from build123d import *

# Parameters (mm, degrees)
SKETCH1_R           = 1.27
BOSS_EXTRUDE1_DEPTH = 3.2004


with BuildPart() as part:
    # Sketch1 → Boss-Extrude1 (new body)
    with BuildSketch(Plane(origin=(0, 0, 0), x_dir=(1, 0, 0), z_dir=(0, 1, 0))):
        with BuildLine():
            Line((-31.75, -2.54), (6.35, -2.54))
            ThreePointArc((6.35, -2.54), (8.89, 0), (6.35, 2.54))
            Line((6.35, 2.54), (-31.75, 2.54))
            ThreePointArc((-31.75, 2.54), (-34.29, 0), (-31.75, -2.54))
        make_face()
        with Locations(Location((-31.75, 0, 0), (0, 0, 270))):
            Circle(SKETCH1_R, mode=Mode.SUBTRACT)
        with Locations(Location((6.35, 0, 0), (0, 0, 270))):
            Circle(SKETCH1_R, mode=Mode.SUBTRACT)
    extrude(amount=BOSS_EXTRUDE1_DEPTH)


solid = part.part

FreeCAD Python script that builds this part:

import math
import FreeCAD as App
import Part
import Sketcher
from FreeCAD import Vector
Q = App.Units.Quantity

doc = App.newDocument("Part")
params = doc.addObject("Spreadsheet::Sheet", "Params")
for row, (alias, value) in enumerate([
    ("sketch1_diameter", "0.1 in"),
    ("sketch1_radius", "0.1 in"),
    ("sketch1_width", "1.5 in"),
    ("pad1_length", "0.126 in"),
], start=1):
    params.set(f"A{row}", alias)
    params.set(f"B{row}", "=" + value)
    params.setAlias(f"B{row}", alias)

body = doc.addObject("PartDesign::Body", "Body")

# Sketch on XZ plane
sketch1 = doc.addObject("Sketcher::SketchObject", "Sketch")
body.addObject(sketch1)
sketch1.AttachmentSupport = (doc.XZ_Plane, [""])
sketch1.MapMode = "FlatFace"
sketch1.addGeometry([
    Part.LineSegment(Vector(-31.8, 2.5, 0), Vector(6.3, 2.5, 0)),  # 0
    Part.ArcOfCircle(Part.Circle(Vector(6.3, 0, 0), Vector(0, 0, 1), 2.5), math.radians(-90), math.radians(90)),  # 1
    Part.LineSegment(Vector(6.3, -2.5, 0), Vector(-31.8, -2.5, 0)),  # 2
    Part.ArcOfCircle(Part.Circle(Vector(-31.8, 0, 0), Vector(0, 0, 1), 2.5), math.radians(90), math.radians(270)),  # 3
    Part.Circle(Vector(-31.8, 0, 0), Vector(0, 0, 1), 1.3),  # 4
    Part.Circle(Vector(6.3, 0, 0), Vector(0, 0, 1), 1.3),  # 5
], False)
sketch1.addConstraint([
    Sketcher.Constraint("Tangent", 0, 2, 1, 2),
    Sketcher.Constraint("Tangent", 1, 1, 2, 1),
    Sketcher.Constraint("Tangent", 2, 2, 3, 2),
    Sketcher.Constraint("Tangent", 3, 1, 0, 1),
    Sketcher.Constraint("Horizontal", 0),
    Sketcher.Constraint("Horizontal", 2),
    Sketcher.Constraint("Coincident", 4, 3, 3, 3),
    Sketcher.Constraint("Coincident", 5, 3, 1, 3),
    Sketcher.Constraint("Equal", 4, 5),
    Sketcher.Constraint("PointOnObject", 1, 3, -1),
    Sketcher.Constraint("Diameter", 4, Q("0.1 in")),
    Sketcher.Constraint("Radius", 1, Q("0.1 in")),
    Sketcher.Constraint("DistanceX", 0, 1, 0, 2, Q("1.5 in")),
    Sketcher.Constraint("DistanceX", -1, 1, 1, 3, Q("0.25 in")),
])
sketch1.setExpression("Constraints[10]", "Params.sketch1_diameter")
sketch1.setExpression("Constraints[11]", "Params.sketch1_radius")
sketch1.setExpression("Constraints[12]", "Params.sketch1_width")
pad1 = doc.addObject("PartDesign::Pad", "Pad")
body.addObject(pad1)
pad1.Profile = sketch1
pad1.setExpression("Length", "Params.pad1_length")
pad1.Reversed = True

doc.recompute()
